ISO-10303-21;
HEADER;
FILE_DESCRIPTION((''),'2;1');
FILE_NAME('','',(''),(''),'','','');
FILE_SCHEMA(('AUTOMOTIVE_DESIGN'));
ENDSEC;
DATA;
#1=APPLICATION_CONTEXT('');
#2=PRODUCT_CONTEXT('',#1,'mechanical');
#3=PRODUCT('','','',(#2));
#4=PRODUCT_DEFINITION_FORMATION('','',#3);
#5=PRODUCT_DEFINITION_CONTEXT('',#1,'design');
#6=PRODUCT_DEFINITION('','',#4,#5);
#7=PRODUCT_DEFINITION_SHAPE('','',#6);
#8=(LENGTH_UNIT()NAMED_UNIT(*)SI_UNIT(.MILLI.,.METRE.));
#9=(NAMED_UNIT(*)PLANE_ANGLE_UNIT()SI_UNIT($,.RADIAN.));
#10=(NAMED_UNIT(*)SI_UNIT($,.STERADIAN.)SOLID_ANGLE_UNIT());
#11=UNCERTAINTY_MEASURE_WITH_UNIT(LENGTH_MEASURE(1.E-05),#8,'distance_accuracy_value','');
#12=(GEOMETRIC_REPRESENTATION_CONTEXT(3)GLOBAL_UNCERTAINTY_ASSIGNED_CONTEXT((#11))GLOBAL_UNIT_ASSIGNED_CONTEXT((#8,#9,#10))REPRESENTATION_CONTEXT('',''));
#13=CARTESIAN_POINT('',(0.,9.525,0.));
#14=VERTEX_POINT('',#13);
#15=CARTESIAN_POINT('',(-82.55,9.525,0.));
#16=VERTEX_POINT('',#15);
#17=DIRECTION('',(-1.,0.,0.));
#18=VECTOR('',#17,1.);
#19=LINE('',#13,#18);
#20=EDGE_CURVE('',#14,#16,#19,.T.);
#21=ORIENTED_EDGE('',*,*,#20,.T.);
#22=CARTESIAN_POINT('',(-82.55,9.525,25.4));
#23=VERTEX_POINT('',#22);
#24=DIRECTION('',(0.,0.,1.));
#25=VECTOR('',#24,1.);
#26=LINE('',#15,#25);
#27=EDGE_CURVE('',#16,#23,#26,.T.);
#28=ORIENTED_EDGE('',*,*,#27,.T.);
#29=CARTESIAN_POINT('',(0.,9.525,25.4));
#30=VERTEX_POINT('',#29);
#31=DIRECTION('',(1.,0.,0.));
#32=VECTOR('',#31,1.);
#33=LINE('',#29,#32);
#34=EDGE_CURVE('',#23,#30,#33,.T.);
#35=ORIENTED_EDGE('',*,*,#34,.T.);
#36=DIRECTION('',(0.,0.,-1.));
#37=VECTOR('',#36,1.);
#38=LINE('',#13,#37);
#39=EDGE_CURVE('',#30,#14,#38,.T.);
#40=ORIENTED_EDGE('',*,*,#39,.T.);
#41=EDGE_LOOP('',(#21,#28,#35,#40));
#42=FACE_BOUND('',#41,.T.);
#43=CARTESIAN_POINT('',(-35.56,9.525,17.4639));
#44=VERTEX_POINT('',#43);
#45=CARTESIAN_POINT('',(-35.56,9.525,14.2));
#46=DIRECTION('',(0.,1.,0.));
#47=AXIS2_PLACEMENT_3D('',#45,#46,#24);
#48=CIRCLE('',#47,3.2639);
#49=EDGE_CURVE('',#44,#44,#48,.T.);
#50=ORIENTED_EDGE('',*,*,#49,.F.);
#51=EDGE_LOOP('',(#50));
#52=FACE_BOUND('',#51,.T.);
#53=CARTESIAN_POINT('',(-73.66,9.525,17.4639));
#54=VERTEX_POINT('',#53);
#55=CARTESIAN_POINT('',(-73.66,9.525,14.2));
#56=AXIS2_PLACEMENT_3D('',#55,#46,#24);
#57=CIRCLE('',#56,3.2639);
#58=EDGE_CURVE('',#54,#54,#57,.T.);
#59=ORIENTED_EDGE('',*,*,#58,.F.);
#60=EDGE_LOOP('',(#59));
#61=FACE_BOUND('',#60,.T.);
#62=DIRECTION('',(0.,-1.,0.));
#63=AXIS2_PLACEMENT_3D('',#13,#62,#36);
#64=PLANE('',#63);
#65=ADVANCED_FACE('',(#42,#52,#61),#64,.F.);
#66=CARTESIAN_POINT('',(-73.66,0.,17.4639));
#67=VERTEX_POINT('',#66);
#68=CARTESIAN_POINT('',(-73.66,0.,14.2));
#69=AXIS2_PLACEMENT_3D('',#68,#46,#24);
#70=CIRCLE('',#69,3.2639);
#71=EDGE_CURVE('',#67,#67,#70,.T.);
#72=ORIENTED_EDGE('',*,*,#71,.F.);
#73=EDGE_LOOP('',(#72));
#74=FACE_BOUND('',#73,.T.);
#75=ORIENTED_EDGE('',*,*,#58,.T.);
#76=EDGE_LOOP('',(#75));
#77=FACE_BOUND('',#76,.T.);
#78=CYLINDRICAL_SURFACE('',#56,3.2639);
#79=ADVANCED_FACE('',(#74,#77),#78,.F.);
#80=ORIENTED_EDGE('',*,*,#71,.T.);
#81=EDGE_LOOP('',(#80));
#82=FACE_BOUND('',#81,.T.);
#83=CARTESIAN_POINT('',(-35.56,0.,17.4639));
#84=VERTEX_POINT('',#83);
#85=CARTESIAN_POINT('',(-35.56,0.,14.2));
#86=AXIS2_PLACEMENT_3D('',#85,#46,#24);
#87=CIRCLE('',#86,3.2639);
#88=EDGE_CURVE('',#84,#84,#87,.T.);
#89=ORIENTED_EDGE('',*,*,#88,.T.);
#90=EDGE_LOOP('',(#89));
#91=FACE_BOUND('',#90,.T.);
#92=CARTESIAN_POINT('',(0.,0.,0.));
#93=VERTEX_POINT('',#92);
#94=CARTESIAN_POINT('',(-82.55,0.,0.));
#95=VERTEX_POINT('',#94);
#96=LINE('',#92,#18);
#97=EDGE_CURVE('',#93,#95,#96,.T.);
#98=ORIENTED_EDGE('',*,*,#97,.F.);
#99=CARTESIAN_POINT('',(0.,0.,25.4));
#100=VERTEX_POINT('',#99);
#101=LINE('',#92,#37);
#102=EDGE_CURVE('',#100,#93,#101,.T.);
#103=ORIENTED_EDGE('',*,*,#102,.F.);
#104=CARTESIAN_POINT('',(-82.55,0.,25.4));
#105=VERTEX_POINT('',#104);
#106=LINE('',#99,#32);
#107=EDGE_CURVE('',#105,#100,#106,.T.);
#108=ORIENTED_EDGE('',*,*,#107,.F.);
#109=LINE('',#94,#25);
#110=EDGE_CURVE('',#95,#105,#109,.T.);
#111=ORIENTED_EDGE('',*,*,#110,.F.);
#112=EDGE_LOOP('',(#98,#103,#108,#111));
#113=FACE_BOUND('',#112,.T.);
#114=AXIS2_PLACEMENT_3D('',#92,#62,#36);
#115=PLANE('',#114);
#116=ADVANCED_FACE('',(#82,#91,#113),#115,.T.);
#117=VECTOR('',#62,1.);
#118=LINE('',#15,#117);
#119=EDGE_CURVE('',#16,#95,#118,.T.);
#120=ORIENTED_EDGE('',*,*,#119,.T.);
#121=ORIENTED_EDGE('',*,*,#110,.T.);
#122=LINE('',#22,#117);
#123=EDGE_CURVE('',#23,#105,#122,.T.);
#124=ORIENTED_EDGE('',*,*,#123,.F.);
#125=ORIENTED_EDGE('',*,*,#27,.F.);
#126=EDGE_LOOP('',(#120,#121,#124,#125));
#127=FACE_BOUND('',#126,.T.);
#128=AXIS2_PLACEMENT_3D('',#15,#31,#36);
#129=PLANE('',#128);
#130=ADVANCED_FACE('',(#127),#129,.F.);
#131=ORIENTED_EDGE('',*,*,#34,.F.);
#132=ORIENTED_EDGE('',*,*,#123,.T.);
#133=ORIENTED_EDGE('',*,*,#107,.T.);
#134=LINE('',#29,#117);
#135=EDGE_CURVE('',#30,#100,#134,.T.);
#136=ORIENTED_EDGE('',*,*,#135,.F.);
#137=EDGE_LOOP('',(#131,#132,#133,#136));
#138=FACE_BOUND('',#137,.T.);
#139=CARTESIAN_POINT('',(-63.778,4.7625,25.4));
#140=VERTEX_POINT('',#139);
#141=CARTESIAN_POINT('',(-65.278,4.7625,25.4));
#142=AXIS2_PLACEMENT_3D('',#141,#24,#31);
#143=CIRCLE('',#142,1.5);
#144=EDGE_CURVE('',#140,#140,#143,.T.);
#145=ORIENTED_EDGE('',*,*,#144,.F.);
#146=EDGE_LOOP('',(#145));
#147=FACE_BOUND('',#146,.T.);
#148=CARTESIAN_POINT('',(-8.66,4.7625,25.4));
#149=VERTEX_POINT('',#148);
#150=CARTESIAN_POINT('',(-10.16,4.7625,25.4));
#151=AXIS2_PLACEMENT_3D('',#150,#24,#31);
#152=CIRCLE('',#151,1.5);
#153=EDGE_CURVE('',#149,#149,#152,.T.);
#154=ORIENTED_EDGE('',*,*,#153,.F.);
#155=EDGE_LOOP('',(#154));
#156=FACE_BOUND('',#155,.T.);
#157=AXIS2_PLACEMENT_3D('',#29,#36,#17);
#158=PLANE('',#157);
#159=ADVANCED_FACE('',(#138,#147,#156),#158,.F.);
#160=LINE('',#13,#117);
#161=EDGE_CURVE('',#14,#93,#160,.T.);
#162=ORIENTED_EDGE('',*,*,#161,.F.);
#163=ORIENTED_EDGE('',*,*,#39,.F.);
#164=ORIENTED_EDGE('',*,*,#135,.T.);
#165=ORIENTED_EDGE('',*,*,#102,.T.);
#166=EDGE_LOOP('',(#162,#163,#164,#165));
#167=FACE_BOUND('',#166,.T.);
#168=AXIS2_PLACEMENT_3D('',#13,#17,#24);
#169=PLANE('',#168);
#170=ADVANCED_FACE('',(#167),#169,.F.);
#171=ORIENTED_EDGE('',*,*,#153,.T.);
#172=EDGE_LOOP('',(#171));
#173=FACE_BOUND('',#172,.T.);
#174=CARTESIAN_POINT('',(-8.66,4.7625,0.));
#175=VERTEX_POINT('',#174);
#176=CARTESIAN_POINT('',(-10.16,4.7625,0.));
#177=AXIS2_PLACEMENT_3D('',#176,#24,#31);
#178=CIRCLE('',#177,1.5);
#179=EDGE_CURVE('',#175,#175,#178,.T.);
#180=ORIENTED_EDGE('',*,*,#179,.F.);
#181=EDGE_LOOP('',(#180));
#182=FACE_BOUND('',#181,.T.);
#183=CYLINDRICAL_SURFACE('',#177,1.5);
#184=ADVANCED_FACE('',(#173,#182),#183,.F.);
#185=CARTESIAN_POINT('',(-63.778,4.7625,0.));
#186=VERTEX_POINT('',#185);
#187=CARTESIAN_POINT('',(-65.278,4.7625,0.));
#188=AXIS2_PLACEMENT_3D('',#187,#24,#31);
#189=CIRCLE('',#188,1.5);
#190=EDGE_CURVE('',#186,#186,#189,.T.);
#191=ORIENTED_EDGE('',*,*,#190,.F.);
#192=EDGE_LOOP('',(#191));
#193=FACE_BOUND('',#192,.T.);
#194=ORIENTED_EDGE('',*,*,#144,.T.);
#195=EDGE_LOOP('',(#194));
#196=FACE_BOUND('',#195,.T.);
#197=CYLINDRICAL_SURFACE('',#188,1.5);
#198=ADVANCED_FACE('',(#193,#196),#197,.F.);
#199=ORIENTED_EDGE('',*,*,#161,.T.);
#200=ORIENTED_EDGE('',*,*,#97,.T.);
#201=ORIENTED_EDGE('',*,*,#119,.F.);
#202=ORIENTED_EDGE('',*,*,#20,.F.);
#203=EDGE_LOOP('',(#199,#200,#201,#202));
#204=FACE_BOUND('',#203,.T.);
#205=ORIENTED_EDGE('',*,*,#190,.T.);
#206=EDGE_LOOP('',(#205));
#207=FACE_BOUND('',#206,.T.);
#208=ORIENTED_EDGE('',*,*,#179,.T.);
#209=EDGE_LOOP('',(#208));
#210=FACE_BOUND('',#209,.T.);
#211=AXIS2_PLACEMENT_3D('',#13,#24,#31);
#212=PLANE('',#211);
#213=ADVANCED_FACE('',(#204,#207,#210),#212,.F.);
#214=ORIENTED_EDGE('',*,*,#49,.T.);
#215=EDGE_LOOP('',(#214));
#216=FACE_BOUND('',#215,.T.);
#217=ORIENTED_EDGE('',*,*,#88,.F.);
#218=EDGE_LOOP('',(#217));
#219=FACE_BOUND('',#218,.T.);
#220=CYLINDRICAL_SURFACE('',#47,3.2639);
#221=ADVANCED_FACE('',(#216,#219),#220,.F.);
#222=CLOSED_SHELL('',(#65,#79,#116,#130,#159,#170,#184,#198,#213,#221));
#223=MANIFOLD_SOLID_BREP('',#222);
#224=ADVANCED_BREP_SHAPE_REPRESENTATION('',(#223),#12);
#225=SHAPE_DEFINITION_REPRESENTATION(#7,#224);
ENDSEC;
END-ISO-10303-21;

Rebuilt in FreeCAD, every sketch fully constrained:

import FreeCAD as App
import Part
import Sketcher
Q = App.Units.Quantity

doc = App.newDocument("Part")
body = doc.addObject("PartDesign::Body", "Body")

# Sketch on XZ plane
sketch1 = body.newObject("Sketcher::SketchObject", "Sketch")
sketch1.AttachmentSupport = (doc.getObject("XZ_Plane"), [""])
sketch1.MapMode = "FlatFace"
sketch1.addGeometry([
    Part.LineSegment(App.Vector(-82.55, 0, 0), App.Vector(-82.55, 25.4, 0)),
    Part.LineSegment(App.Vector(-82.55, 25.4, 0), App.Vector(0, 25.4, 0)),
    Part.LineSegment(App.Vector(0, 25.4, 0), App.Vector(0, 0, 0)),
    Part.LineSegment(App.Vector(0, 0, 0), App.Vector(-82.55, 0, 0)),
], False)
sketch1.addConstraint([
    Sketcher.Constraint("Coincident", 0, 2, 1, 1),
    Sketcher.Constraint("Coincident", 1, 2, 2, 1),
    Sketcher.Constraint("Coincident", 2, 2, 3, 1),
    Sketcher.Constraint("Coincident", 3, 2, 0, 1),
    Sketcher.Constraint("Vertical", 0),
    Sketcher.Constraint("Horizontal", 1),
    Sketcher.Constraint("Vertical", 2),
    Sketcher.Constraint("Horizontal", 3),
    Sketcher.Constraint("Coincident", 2, 2, -1, 1),
    Sketcher.Constraint("DistanceY", 0, 1, 0, 2, Q("1 in")),
    Sketcher.Constraint("DistanceX", 1, 1, 1, 2, Q("3.25 in")),
])
pad1 = body.newObject("PartDesign::Pad", "Pad")
pad1.Profile = sketch1
pad1.Length = Q("0.375 in")
pad1.Reversed = True

# Sketch on XZ plane
sketch2 = body.newObject("Sketcher::SketchObject", "Sketch001")
sketch2.AttachmentSupport = (doc.getObject("XZ_Plane"), [""])
sketch2.MapMode = "FlatFace"
sketch2.AttachmentOffset = App.Placement(App.Vector(0, 0, -0.375 * 25.4), App.Rotation())
sketch2.addGeometry([
    Part.Circle(App.Vector(-73.66, 14.2, 0), App.Vector(0, 0, 1), 3.2639),
    Part.Circle(App.Vector(-35.56, 14.2, 0), App.Vector(0, 0, 1), 3.2639),
], False)
sketch2.addConstraint([
    Sketcher.Constraint("Equal", 0, 1),
    Sketcher.Constraint("Horizontal", 0, 3, 1, 3),
    Sketcher.Constraint("Diameter", 0, Q("0.257 in")),
    Sketcher.Constraint("DistanceX", 0, 3, -1, 1, Q("2.9 in")),
    Sketcher.Constraint("DistanceX", 1, 3, -1, 1, Q("1.4 in")),
    Sketcher.Constraint("DistanceY", -1, 1, 0, 3, 14.2),
])
doc.recompute()
hole = body.newObject("PartDesign::Hole", "Hole")
hole.Profile = sketch2
hole.ThreadType = "None"
hole.Diameter = Q("0.257 in")
hole.DepthType = "ThroughAll"
hole.Reversed = True

# Sketch on XY plane
sketch3 = body.newObject("Sketcher::SketchObject", "Sketch002")
sketch3.AttachmentSupport = (doc.getObject("XY_Plane"), [""])
sketch3.MapMode = "FlatFace"
sketch3.AttachmentOffset = App.Placement(App.Vector(0, 0, 1 * 25.4), App.Rotation())
sketch3.addGeometry([
    Part.Circle(App.Vector(-65.278, 4.7625, 0), App.Vector(0, 0, 1), 1.5),
    Part.Circle(App.Vector(-10.16, 4.7625, 0), App.Vector(0, 0, 1), 1.5),
], False)
sketch3.addConstraint([
    Sketcher.Constraint("Equal", 0, 1),
    Sketcher.Constraint("Horizontal", 0, 3, 1, 3),
    Sketcher.Constraint("DistanceX", 1, 3, -1, 1, Q("0.4 in")),
    Sketcher.Constraint("Diameter", 0, 3.0),
    Sketcher.Constraint("DistanceX", 0, 3, -1, 1, Q("2.57 in")),
    Sketcher.Constraint("DistanceY", -1, 1, 0, 3, Q("0.1875 in")),
])
pocket1 = body.newObject("PartDesign::Pocket", "Pocket")
pocket1.Profile = sketch3
pocket1.Type = "ThroughAll"

doc.recompute()
